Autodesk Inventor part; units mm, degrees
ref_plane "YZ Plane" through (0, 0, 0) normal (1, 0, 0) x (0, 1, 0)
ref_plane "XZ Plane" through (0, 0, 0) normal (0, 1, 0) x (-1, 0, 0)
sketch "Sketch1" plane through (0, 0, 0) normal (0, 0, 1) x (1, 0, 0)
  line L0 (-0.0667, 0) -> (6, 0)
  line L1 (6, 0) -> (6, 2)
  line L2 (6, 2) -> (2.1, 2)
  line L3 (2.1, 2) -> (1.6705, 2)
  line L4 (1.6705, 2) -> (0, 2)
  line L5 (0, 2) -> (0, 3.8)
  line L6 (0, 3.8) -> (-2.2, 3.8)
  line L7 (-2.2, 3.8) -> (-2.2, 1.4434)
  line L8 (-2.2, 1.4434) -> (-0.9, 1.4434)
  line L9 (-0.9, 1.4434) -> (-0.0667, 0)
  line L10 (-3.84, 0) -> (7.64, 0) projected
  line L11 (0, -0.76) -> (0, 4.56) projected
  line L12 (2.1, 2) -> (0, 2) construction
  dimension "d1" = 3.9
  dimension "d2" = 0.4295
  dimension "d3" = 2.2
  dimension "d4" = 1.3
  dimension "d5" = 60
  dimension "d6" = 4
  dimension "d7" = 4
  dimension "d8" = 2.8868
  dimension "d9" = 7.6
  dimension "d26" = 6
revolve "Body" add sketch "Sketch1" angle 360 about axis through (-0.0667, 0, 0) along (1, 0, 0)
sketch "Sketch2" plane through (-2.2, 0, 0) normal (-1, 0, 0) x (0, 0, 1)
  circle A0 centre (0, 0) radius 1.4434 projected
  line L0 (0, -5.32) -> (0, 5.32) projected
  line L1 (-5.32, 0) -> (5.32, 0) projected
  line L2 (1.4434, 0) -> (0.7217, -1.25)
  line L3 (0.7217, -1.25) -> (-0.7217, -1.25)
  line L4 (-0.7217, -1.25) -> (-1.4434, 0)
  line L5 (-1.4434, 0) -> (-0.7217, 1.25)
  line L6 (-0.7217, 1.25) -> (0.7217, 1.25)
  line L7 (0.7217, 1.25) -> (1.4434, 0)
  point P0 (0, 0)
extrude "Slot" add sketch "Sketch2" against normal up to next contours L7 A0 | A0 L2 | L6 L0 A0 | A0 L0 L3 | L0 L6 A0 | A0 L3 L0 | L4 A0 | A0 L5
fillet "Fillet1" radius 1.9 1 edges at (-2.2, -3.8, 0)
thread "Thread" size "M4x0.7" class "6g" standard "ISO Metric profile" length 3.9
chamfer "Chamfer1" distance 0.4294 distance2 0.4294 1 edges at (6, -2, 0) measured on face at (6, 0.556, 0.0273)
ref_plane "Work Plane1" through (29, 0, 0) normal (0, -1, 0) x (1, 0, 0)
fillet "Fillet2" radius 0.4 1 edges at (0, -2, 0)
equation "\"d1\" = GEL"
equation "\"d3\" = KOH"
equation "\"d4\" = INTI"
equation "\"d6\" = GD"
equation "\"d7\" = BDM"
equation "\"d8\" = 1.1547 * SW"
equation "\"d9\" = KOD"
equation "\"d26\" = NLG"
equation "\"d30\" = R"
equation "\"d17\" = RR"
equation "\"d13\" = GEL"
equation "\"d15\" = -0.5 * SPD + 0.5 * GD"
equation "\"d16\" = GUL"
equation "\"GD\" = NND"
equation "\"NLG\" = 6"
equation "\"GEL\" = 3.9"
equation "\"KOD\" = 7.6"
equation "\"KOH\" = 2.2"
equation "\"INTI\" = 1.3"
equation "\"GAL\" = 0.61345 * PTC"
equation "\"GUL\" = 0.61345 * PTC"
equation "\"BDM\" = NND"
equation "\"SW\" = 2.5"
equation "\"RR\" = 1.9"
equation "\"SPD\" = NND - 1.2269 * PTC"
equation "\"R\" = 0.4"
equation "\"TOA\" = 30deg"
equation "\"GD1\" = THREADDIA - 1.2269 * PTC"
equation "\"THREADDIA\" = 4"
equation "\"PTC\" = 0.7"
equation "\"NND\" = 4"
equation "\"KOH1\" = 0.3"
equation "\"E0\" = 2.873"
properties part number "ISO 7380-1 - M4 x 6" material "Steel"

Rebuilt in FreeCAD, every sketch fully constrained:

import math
import FreeCAD as App
import Part
import Sketcher

V = App.Vector
Q = App.Units.Quantity


def edges_at(feature, points):
    """Names of the edges that pass closest to the given points."""
    edges = feature.Shape.Edges
    near = lambda p: min(range(len(edges)), key=lambda i: edges[i].distToShape(Part.Vertex(*p))[0])
    return sorted({f"Edge{near(p) + 1}" for p in points})


def add_polygon(sketch, points):
    """Adds a closed chain of lines whose ends are joined by coincident constraints."""
    first, n = sketch.GeometryCount, len(points)
    for a, b in zip(points, points[1:] + points[:1]):
        sketch.addGeometry(Part.LineSegment(App.Vector(*a, 0), App.Vector(*b, 0)), False)
    for i in range(n):
        sketch.addConstraint(Sketcher.Constraint("Coincident", first + i, 2, first + (i + 1) % n, 1))

doc = App.newDocument("Part")
body = doc.addObject("PartDesign::Body", "Body")

# Sketch on XY plane
sketch1 = body.newObject("Sketcher::SketchObject", "Sketch")
sketch1.AttachmentSupport = (doc.getObject("XY_Plane"), [""])
sketch1.MapMode = "FlatFace"
add_polygon(sketch1, [(-0.9, 1.4434), (-0.0667, 0), (6, 0), (6, 2), (0, 2), (0, 3.8), (-2.2, 3.8), (-2.2, 1.4434)])  # lines 0-7
sketch1.addConstraint(Sketcher.Constraint("Horizontal", 1))
sketch1.addConstraint(Sketcher.Constraint("Vertical", 2))
sketch1.addConstraint(Sketcher.Constraint("Horizontal", 3))
sketch1.addConstraint(Sketcher.Constraint("Vertical", 4))
sketch1.addConstraint(Sketcher.Constraint("Horizontal", 5))
sketch1.addConstraint(Sketcher.Constraint("Vertical", 6))
sketch1.addConstraint(Sketcher.Constraint("Horizontal", 7))
sketch1.addConstraint(Sketcher.Constraint("PointOnObject", 0, 2, -1))
sketch1.addConstraint(Sketcher.Constraint("PointOnObject", 3, 2, -2))
sketch1.addConstraint(Sketcher.Constraint("DistanceX", 3, 2, 3, 1, Q("6 mm")))
sketch1.addConstraint(Sketcher.Constraint("DistanceX", 5, 2, 5, 1, Q("2.2 mm")))
sketch1.addConstraint(Sketcher.Constraint("DistanceX", 7, 1, 7, 2, Q("1.3 mm")))
sketch1.addConstraint(Sketcher.Constraint("DistanceY", 2, 1, 2, 2, Q("2 mm")))
sketch1.addConstraint(Sketcher.Constraint("DistanceY", 4, 1, 4, 2, Q("1.8 mm")))
sketch1.addConstraint(Sketcher.Constraint("DistanceX", 1, 1, 1, 2, Q("6.0667 mm")))
sketch1.addConstraint(Sketcher.Constraint("DistanceY", 6, 2, 6, 1, Q("2.3566 mm")))
revolution = body.newObject("PartDesign::Revolution", "Revolution")
revolution.Profile = sketch1
revolution.ReferenceAxis = (sketch1, ["H_Axis"])
revolution.Angle = 360

# Sketch on YZ plane
sketch2 = body.newObject("Sketcher::SketchObject", "Sketch001")
sketch2.AttachmentSupport = (doc.getObject("YZ_Plane"), [""])
sketch2.MapMode = "FlatFace"
sketch2.AttachmentOffset = App.Placement(V(0, 0, -2.2), App.Rotation())
sketch2.addGeometry(Part.LineSegment(V(1.25, 0.7217, 0), V(0, 1.4434, 0)), False)
sketch2.addGeometry(Part.ArcOfCircle(Part.Circle(V(0, 0, 0), V(0, 0, 1), 1.4434), math.radians(30.000418), math.radians(90)), False)
sketch2.addGeometry(Part.ArcOfCircle(Part.Circle(V(0, 0, 0), V(0, 0, 1), 1.4434), math.radians(90), math.radians(149.999582)), False)
sketch2.addGeometry(Part.LineSegment(V(0, 1.4434, 0), V(-1.25, 0.7217, 0)), False)
sketch2.addGeometry(Part.ArcOfCircle(Part.Circle(V(0, 0, 0), V(0, 0, 1), 1.4434), math.radians(-30.000418), math.radians(30.000418)), False)
sketch2.addGeometry(Part.LineSegment(V(1.25, 0.7217, 0), V(1.25, -0.7217, 0)), False)
sketch2.addGeometry(Part.LineSegment(V(-1.25, 0.7217, 0), V(-1.25, -0.7217, 0)), False)
sketch2.addGeometry(Part.ArcOfCircle(Part.Circle(V(0, 0, 0), V(0, 0, 1), 1.4434), math.radians(149.999582), math.radians(210.000418)), False)
sketch2.addGeometry(Part.LineSegment(V(-1.25, -0.7217, 0), V(0, -1.4434, 0)), False)
sketch2.addGeometry(Part.ArcOfCircle(Part.Circle(V(0, 0, 0), V(0, 0, 1), 1.4434), math.radians(-149.999582), math.radians(-90)), False)
sketch2.addGeometry(Part.ArcOfCircle(Part.Circle(V(0, 0, 0), V(0, 0, 1), 1.4434), math.radians(-90), math.radians(-30.000418)), False)
sketch2.addGeometry(Part.LineSegment(V(0, -1.4434, 0), V(1.25, -0.7217, 0)), False)
sketch2.addConstraint(Sketcher.Constraint("Coincident", 0, 1, 1, 1))
sketch2.addConstraint(Sketcher.Constraint("Coincident", 1, 2, 0, 2))
sketch2.addConstraint(Sketcher.Constraint("Coincident", 2, 1, 3, 1))
sketch2.addConstraint(Sketcher.Constraint("Coincident", 3, 2, 2, 2))
sketch2.addConstraint(Sketcher.Constraint("Coincident", 4, 1, 5, 2))
sketch2.addConstraint(Sketcher.Constraint("Coincident", 5, 1, 4, 2))
sketch2.addConstraint(Sketcher.Constraint("Coincident", 6, 1, 7, 1))
sketch2.addConstraint(Sketcher.Constraint("Coincident", 7, 2, 6, 2))
sketch2.addConstraint(Sketcher.Constraint("Coincident", 8, 1, 9, 1))
sketch2.addConstraint(Sketcher.Constraint("Coincident", 9, 2, 8, 2))
sketch2.addConstraint(Sketcher.Constraint("Coincident", 10, 1, 11, 1))
sketch2.addConstraint(Sketcher.Constraint("Coincident", 11, 2, 10, 2))
sketch2.addConstraint(Sketcher.Constraint("Vertical", 5))
sketch2.addConstraint(Sketcher.Constraint("Vertical", 6))
sketch2.addConstraint(Sketcher.Constraint("Coincident", 1, 3, -1, 1))
sketch2.addConstraint(Sketcher.Constraint("Coincident", 2, 3, -1, 1))
sketch2.addConstraint(Sketcher.Constraint("Coincident", 4, 3, -1, 1))
sketch2.addConstraint(Sketcher.Constraint("Coincident", 7, 3, -1, 1))
sketch2.addConstraint(Sketcher.Constraint("Coincident", 9, 3, -1, 1))
sketch2.addConstraint(Sketcher.Constraint("Coincident", 10, 3, -1, 1))
sketch2.addConstraint(Sketcher.Constraint("Coincident", 2, 1, 1, 2))
sketch2.addConstraint(Sketcher.Constraint("Coincident", 5, 1, 0, 1))
sketch2.addConstraint(Sketcher.Constraint("Coincident", 6, 1, 3, 2))
sketch2.addConstraint(Sketcher.Constraint("Coincident", 8, 1, 7, 2))
sketch2.addConstraint(Sketcher.Constraint("Coincident", 10, 1, 9, 2))
sketch2.addConstraint(Sketcher.Constraint("PointOnObject", 1, 2, -2))
sketch2.addConstraint(Sketcher.Constraint("PointOnObject", 9, 2, -2))
sketch2.addConstraint(Sketcher.Constraint("Parallel", 0, 8))
sketch2.addConstraint(Sketcher.Constraint("Parallel", 3, 11))
sketch2.addConstraint(Sketcher.Constraint("Angle", 0, Q("149.9996 deg")))
sketch2.addConstraint(Sketcher.Constraint("Radius", 1, Q("1.4434 mm")))
pad1 = body.newObject("PartDesign::Pad", "Pad")
pad1.Profile = sketch2
pad1.Type = "UpToFirst"
doc.recompute()

fillet = body.newObject("PartDesign::Fillet", "Fillet")
fillet.Base = (pad1, edges_at(pad1, [(-2.2, -3.8, 0)]))
fillet.Radius = 1.9
doc.recompute()

chamfer = body.newObject("PartDesign::Chamfer", "Chamfer")
chamfer.Base = (fillet, edges_at(fillet, [(6, -2, 0)]))
chamfer.ChamferType = "Two distances"
chamfer.Size = 0.4294
chamfer.Size2 = 0.4294
doc.recompute()

fillet2 = body.newObject("PartDesign::Fillet", "Fillet001")
fillet2.Base = (chamfer, edges_at(chamfer, [(0, -2, 0)]))
fillet2.Radius = 0.4

doc.recompute()
